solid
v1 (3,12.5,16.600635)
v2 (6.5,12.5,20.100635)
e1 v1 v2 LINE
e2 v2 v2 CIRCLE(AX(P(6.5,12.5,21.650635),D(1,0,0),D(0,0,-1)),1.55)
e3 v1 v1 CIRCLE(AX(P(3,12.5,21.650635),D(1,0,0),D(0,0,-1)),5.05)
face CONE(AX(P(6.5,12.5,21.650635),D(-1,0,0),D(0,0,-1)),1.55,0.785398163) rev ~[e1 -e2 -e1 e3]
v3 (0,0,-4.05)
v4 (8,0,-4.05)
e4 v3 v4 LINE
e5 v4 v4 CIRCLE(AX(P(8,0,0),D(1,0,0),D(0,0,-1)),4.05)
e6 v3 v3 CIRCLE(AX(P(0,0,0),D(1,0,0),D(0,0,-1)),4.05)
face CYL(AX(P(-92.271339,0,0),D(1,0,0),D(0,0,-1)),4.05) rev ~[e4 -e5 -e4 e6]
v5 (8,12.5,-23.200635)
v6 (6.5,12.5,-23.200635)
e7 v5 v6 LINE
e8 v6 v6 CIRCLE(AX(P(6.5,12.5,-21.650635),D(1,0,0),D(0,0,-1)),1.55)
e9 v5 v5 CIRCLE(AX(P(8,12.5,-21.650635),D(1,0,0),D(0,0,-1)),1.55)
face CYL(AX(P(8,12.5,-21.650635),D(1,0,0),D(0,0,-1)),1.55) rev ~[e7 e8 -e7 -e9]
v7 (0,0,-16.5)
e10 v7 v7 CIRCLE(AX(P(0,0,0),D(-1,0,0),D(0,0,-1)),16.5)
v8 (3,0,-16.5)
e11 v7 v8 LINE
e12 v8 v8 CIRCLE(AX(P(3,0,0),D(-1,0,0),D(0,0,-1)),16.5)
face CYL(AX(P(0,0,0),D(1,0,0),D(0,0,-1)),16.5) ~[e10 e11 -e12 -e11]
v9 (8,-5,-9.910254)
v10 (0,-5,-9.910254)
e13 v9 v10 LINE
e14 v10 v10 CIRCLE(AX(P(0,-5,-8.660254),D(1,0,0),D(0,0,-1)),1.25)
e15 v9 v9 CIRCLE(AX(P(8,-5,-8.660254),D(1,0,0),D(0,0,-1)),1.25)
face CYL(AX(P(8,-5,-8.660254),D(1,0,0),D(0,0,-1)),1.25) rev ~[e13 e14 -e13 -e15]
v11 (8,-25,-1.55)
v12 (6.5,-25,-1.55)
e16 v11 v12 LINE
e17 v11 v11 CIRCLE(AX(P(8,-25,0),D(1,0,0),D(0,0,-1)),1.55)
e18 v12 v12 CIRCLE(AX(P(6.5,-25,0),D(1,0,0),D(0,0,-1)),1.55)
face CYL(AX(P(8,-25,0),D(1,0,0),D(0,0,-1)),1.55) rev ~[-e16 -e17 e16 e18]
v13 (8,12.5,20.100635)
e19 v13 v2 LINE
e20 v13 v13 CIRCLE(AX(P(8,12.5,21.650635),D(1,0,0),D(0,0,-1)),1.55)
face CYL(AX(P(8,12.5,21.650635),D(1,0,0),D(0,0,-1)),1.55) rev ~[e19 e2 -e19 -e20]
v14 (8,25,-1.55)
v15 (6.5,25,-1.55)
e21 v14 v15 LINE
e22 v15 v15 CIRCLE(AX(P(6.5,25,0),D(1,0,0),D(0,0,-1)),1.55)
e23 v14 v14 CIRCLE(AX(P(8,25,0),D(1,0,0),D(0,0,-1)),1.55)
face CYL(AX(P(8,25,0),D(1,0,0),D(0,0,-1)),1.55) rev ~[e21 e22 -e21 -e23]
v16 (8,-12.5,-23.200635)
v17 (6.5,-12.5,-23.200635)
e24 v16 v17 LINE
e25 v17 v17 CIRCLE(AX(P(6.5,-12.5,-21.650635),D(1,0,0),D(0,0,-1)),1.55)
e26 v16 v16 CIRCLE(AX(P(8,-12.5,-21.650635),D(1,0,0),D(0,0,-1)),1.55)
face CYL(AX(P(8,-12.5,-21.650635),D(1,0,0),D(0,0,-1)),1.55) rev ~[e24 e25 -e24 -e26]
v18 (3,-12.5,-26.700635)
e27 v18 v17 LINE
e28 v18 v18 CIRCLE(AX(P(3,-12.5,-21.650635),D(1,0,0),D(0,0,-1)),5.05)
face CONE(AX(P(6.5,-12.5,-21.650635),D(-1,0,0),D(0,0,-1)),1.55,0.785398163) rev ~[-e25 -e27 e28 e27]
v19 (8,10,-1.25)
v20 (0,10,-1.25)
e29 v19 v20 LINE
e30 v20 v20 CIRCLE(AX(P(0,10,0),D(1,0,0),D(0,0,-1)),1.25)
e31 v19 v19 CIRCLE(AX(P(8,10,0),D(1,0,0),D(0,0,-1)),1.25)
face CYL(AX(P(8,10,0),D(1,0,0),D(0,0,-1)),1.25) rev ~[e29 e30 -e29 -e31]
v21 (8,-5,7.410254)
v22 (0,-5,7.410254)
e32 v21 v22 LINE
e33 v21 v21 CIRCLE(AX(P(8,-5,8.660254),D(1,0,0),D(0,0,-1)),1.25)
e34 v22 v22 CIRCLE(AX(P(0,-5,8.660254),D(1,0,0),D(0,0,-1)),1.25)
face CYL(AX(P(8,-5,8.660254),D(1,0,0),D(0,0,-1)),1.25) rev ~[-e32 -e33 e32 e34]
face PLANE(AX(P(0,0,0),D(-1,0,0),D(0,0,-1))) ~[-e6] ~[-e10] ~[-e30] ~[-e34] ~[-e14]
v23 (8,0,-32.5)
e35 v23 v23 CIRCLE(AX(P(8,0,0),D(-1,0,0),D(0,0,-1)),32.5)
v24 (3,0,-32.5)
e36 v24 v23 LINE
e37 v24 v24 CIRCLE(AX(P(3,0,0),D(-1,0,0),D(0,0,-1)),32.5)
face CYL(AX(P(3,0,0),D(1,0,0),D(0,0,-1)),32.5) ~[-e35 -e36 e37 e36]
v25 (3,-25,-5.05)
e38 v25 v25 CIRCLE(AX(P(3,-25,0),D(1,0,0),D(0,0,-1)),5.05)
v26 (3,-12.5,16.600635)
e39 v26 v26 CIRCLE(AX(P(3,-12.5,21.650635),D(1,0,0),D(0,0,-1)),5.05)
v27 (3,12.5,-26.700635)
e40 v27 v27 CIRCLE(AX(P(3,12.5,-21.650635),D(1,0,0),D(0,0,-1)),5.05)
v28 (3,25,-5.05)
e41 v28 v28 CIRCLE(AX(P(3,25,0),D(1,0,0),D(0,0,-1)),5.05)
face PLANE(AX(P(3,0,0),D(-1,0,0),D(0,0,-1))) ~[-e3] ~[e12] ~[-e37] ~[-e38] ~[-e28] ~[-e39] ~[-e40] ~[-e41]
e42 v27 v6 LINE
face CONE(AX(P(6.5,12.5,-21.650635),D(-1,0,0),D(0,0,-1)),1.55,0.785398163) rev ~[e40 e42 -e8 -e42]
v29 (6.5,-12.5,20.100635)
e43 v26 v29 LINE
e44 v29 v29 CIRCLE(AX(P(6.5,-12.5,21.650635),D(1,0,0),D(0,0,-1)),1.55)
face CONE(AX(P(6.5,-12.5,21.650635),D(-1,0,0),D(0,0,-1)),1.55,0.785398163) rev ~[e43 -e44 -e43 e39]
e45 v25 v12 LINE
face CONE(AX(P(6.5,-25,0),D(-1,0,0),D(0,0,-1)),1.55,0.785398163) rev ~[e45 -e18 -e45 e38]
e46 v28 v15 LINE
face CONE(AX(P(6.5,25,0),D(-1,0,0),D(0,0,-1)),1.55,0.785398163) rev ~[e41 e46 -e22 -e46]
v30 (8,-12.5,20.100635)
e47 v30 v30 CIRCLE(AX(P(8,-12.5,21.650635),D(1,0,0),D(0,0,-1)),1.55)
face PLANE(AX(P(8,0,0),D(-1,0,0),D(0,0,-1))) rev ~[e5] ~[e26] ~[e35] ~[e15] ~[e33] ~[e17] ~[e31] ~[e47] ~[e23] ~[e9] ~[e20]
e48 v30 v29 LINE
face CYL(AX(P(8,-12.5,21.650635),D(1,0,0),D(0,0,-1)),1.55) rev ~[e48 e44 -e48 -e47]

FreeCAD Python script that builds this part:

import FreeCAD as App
import Part
import Sketcher

V = App.Vector


def edges_at(feature, points):
    """Names of the edges that pass closest to the given points."""
    edges = feature.Shape.Edges
    near = lambda p: min(range(len(edges)), key=lambda i: edges[i].distToShape(Part.Vertex(*p))[0])
    return sorted({f"Edge{near(p) + 1}" for p in points})


def add_polygon(sketch, points):
    """Adds a closed chain of lines whose ends are joined by coincident constraints."""
    first, n = sketch.GeometryCount, len(points)
    for a, b in zip(points, points[1:] + points[:1]):
        sketch.addGeometry(Part.LineSegment(App.Vector(*a, 0), App.Vector(*b, 0)), False)
    for i in range(n):
        sketch.addConstraint(Sketcher.Constraint("Coincident", first + i, 2, first + (i + 1) % n, 1))

doc = App.newDocument("Part")
body = doc.addObject("PartDesign::Body", "Body")

# Sketch on XY plane
sketch1 = doc.addObject("Sketcher::SketchObject", "Sketch")
body.addObject(sketch1)
sketch1.AttachmentSupport = (doc.XY_Plane, [""])
sketch1.MapMode = "FlatFace"
add_polygon(sketch1, [(0, 16.5), (0, 0), (8, 0), (8, 32.5), (3, 32.5), (3, 16.5)])  # lines 0-5
sketch1.addConstraint(Sketcher.Constraint("Vertical", 0))
sketch1.addConstraint(Sketcher.Constraint("Horizontal", 1))
sketch1.addConstraint(Sketcher.Constraint("Vertical", 2))
sketch1.addConstraint(Sketcher.Constraint("Horizontal", 3))
sketch1.addConstraint(Sketcher.Constraint("Vertical", 4))
sketch1.addConstraint(Sketcher.Constraint("Horizontal", 5))
sketch1.addConstraint(Sketcher.Constraint("Coincident", 0, 2, -1, 1))
sketch1.addConstraint(Sketcher.Constraint("DistanceX", 1, 1, 1, 2, 8.0))
sketch1.addConstraint(Sketcher.Constraint("DistanceX", 3, 2, 3, 1, 5.0))
sketch1.addConstraint(Sketcher.Constraint("DistanceY", 4, 2, 4, 1, 16.0))
sketch1.addConstraint(Sketcher.Constraint("DistanceY", 0, 2, 0, 1, 16.5))
revolution = doc.addObject("PartDesign::Revolution", "Revolution")
body.addObject(revolution)
revolution.Profile = sketch1
revolution.ReferenceAxis = (sketch1, ["H_Axis"])
revolution.Angle = 360

# Sketch on YZ plane
sketch2 = doc.addObject("Sketcher::SketchObject", "Sketch001")
body.addObject(sketch2)
sketch2.AttachmentSupport = (doc.YZ_Plane, [""])
sketch2.MapMode = "FlatFace"
sketch2.addGeometry(Part.Circle(V(0, 0, 0), V(0, 0, 1), 4.05), False)
sketch2.addConstraint(Sketcher.Constraint("Coincident", 0, 3, -1, 1))
sketch2.addConstraint(Sketcher.Constraint("Diameter", 0, 8.1))
doc.recompute()
hole = doc.addObject("PartDesign::Hole", "Hole")
body.addObject(hole)
hole.Profile = sketch2
hole.ThreadType = "None"
hole.Diameter = 8.1
hole.DepthType = "ThroughAll"
hole.Reversed = True

# Sketch on YZ plane
sketch3 = doc.addObject("Sketcher::SketchObject", "Sketch002")
body.addObject(sketch3)
sketch3.AttachmentSupport = (doc.YZ_Plane, [""])
sketch3.MapMode = "FlatFace"
sketch3.AttachmentOffset = App.Placement(V(0, 0, 8), App.Rotation())
sketch3.addGeometry(Part.Circle(V(10, 0, 0), V(0, 0, 1), 1.25), False)
sketch3.addGeometry(Part.Circle(V(-5, -8.660254, 0), V(0, 0, 1), 1.25), False)
sketch3.addGeometry(Part.Circle(V(-5, 8.660254, 0), V(0, 0, 1), 1.25), False)
sketch3.addConstraint(Sketcher.Constraint("Equal", 0, 1))
sketch3.addConstraint(Sketcher.Constraint("Equal", 1, 2))
sketch3.addConstraint(Sketcher.Constraint("Symmetric", 1, 3, 2, 3, -1))
sketch3.addConstraint(Sketcher.Constraint("PointOnObject", 0, 3, -1))
sketch3.addConstraint(Sketcher.Constraint("Diameter", 0, 2.5))
sketch3.addConstraint(Sketcher.Constraint("DistanceX", -1, 1, 0, 3, 10.0))
sketch3.addConstraint(Sketcher.Constraint("DistanceX", 1, 3, -1, 1, 5.0))
sketch3.addConstraint(Sketcher.Constraint("DistanceY", 1, 3, 2, 3, 17.320508))
pocket1 = doc.addObject("PartDesign::Pocket", "Pocket")
body.addObject(pocket1)
pocket1.Profile = sketch3
pocket1.Type = "ThroughAll"

# Sketch on YZ plane
sketch4 = doc.addObject("Sketcher::SketchObject", "Sketch003")
body.addObject(sketch4)
sketch4.AttachmentSupport = (doc.YZ_Plane, [""])
sketch4.MapMode = "FlatFace"
sketch4.AttachmentOffset = App.Placement(V(0, 0, 8), App.Rotation())
sketch4.addGeometry(Part.Circle(V(25, 0, 0), V(0, 0, 1), 1.55), False)
sketch4.addGeometry(Part.Circle(V(12.5, -21.650635, 0), V(0, 0, 1), 1.55), False)
sketch4.addGeometry(Part.Circle(V(-12.5, -21.650635, 0), V(0, 0, 1), 1.55), False)
sketch4.addGeometry(Part.Circle(V(-25, 0, 0), V(0, 0, 1), 1.55), False)
sketch4.addGeometry(Part.Circle(V(-12.5, 21.650635, 0), V(0, 0, 1), 1.55), False)
sketch4.addGeometry(Part.Circle(V(12.5, 21.650635, 0), V(0, 0, 1), 1.55), False)
sketch4.addConstraint(Sketcher.Constraint("Equal", 0, 1))
sketch4.addConstraint(Sketcher.Constraint("Equal", 1, 2))
sketch4.addConstraint(Sketcher.Constraint("Equal", 2, 3))
sketch4.addConstraint(Sketcher.Constraint("Equal", 3, 4))
sketch4.addConstraint(Sketcher.Constraint("Equal", 4, 5))
sketch4.addConstraint(Sketcher.Constraint("Symmetric", 0, 3, 3, 3, -1, 1))
sketch4.addConstraint(Sketcher.Constraint("Symmetric", 1, 3, 4, 3, -1, 1))
sketch4.addConstraint(Sketcher.Constraint("Symmetric", 2, 3, 5, 3, -1, 1))
sketch4.addConstraint(Sketcher.Constraint("Symmetric", 1, 3, 2, 3, -2))
sketch4.addConstraint(Sketcher.Constraint("PointOnObject", 0, 3, -1))
sketch4.addConstraint(Sketcher.Constraint("Diameter", 0, 3.1))
sketch4.addConstraint(Sketcher.Constraint("DistanceX", -1, 1, 0, 3, 25.0))
sketch4.addConstraint(Sketcher.Constraint("DistanceX", 2, 3, 1, 3, 25.0))
sketch4.addConstraint(Sketcher.Constraint("DistanceY", 2, 3, 4, 3, 43.30127))
pocket2 = doc.addObject("PartDesign::Pocket", "Pocket001")
body.addObject(pocket2)
pocket2.Profile = sketch4
pocket2.Type = "ThroughAll"
doc.recompute()

chamfer = doc.addObject("PartDesign::Chamfer", "Chamfer")
body.addObject(chamfer)
chamfer.Base = (pocket2, edges_at(pocket2, [
    (3, 25, 1.55),
    (3, 12.5, 23.201),
    (3, -12.5, 23.201),
    (3, -25, 1.55),
    (3, -12.5, -20.101),
    (3, 12.5, -20.101),
]))
chamfer.Size = 3.5

doc.recompute()
